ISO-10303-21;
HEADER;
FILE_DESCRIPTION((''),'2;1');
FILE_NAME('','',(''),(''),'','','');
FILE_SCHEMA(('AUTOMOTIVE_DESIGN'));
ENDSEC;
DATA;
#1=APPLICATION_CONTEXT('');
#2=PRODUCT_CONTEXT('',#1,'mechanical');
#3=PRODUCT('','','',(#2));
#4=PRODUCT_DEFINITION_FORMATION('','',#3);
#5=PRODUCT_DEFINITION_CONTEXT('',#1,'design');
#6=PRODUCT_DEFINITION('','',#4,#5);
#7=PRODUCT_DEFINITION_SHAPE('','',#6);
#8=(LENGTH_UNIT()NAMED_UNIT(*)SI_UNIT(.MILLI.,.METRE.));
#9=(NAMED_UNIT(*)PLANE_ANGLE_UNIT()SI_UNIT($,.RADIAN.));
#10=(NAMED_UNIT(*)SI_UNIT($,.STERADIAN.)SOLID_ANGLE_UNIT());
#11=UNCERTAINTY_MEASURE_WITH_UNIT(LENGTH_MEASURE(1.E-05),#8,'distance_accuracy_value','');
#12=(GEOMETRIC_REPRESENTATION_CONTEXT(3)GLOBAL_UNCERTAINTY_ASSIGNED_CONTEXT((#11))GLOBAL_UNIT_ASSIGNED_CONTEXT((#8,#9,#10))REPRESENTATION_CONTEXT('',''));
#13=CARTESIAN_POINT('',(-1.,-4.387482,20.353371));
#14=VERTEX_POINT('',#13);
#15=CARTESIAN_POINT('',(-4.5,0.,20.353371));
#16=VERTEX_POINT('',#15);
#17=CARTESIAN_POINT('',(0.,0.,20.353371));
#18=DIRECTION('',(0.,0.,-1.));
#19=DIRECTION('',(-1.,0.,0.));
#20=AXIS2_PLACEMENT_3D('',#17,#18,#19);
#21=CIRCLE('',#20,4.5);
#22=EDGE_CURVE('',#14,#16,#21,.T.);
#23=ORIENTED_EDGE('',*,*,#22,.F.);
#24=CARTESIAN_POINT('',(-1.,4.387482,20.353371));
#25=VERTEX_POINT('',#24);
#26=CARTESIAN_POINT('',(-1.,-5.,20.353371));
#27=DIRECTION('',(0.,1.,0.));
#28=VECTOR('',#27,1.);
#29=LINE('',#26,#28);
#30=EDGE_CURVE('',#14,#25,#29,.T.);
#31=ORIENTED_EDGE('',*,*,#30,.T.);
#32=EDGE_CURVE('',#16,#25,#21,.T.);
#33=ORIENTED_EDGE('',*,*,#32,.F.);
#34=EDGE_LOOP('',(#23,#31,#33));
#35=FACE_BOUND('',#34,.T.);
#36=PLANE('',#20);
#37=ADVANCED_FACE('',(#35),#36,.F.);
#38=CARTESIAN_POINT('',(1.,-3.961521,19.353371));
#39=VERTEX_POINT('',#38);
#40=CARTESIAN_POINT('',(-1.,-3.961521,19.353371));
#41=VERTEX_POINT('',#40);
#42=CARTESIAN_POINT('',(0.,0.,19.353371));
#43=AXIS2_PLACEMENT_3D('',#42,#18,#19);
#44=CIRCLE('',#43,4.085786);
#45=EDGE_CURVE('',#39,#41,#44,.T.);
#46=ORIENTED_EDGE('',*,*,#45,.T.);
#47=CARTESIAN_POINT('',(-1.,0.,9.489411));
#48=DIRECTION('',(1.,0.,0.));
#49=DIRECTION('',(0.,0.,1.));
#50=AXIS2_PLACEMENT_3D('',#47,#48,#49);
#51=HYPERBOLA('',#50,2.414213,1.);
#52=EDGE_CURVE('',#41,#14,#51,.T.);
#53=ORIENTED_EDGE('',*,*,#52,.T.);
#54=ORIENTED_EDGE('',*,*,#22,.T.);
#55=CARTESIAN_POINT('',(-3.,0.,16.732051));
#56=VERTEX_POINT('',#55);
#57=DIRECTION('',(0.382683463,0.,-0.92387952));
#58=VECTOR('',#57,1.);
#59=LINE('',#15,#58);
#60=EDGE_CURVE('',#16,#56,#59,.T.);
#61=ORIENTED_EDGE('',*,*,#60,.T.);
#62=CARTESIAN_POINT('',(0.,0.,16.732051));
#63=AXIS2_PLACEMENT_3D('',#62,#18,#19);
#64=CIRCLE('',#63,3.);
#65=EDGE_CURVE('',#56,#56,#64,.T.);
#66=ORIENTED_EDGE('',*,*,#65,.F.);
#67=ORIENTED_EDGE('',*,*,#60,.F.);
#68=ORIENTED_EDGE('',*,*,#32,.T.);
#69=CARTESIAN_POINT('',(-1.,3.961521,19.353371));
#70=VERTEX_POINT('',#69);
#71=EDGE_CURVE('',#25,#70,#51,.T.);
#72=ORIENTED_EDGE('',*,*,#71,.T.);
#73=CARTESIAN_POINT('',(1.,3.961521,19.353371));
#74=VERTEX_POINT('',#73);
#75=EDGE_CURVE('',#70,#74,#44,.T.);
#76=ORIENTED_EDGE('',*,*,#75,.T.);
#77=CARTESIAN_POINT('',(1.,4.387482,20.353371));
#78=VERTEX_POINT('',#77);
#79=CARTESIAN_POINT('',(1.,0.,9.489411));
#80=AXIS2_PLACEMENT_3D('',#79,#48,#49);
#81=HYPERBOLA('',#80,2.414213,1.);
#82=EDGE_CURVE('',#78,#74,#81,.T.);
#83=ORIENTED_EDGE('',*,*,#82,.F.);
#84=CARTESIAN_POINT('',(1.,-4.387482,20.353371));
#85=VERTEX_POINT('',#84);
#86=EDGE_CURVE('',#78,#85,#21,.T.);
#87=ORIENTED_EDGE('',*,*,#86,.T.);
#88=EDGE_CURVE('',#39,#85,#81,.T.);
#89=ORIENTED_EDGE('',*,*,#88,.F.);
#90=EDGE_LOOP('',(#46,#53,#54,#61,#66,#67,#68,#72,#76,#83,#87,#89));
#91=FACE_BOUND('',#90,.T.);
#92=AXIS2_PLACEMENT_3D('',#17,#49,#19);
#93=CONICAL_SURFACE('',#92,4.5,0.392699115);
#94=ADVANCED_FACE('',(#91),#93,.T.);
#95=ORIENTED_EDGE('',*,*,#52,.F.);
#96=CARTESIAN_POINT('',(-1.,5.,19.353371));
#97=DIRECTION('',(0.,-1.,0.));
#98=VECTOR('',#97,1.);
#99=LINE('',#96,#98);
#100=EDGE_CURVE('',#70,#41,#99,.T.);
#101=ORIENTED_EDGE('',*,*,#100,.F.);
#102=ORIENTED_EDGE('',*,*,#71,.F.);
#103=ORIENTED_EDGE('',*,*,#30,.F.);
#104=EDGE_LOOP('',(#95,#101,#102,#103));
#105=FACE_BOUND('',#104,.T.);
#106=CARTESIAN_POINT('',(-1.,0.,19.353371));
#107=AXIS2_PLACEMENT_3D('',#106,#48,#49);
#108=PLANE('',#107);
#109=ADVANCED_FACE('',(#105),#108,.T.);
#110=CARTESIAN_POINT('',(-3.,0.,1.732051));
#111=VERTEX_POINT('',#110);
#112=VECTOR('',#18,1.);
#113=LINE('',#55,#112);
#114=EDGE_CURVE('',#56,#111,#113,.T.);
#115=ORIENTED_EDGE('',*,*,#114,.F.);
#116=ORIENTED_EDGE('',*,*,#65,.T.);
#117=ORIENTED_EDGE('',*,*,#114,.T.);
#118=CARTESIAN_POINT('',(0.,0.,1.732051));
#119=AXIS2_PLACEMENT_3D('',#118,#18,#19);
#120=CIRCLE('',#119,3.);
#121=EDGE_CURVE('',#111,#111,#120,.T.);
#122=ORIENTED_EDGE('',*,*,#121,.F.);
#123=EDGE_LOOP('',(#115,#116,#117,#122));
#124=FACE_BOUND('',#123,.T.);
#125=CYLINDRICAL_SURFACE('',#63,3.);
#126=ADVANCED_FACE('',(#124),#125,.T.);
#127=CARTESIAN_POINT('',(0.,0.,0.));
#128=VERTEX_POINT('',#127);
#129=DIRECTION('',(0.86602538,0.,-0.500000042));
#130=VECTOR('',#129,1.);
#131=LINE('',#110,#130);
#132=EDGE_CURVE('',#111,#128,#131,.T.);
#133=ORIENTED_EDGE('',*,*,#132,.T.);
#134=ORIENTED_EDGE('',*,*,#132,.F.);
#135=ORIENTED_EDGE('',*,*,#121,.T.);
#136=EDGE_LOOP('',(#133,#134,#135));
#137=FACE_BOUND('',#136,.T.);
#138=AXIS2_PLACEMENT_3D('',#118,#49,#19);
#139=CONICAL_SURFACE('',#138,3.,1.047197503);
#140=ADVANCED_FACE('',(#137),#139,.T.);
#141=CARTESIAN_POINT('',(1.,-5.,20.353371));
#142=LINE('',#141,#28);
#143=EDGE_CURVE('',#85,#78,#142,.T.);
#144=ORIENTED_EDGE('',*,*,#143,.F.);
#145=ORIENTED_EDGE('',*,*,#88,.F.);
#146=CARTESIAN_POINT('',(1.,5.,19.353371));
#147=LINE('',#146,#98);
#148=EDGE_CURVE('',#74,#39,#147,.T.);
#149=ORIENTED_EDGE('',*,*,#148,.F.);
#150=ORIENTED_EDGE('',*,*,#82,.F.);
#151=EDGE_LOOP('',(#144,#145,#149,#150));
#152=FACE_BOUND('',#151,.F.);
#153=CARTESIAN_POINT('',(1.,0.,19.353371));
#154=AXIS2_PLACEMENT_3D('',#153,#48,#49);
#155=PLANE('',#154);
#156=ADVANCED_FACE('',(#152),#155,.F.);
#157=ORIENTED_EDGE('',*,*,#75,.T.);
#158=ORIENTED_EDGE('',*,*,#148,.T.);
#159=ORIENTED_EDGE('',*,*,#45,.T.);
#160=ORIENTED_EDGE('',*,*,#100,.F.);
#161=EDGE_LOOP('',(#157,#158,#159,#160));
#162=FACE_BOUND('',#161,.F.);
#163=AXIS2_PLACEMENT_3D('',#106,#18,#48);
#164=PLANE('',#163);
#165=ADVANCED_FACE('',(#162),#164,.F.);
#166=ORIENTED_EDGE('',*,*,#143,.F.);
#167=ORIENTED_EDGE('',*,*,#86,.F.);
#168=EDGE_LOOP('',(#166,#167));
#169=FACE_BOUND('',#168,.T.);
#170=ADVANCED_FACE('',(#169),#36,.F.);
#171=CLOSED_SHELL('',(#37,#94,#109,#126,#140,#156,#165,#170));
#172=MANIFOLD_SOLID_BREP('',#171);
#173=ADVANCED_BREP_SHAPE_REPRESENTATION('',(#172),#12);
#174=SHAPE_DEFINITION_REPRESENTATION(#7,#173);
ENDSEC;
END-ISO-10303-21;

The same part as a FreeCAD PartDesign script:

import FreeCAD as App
import Part
import Sketcher
Q = App.Units.Quantity

doc = App.newDocument("Part")
body = doc.addObject("PartDesign::Body", "Body")

# Sketch on XZ plane
sketch1 = body.newObject("Sketcher::SketchObject", "Sketch")
sketch1.AttachmentSupport = (doc.getObject("XZ_Plane"), [""])
sketch1.MapMode = "FlatFace"
sketch1.addGeometry(Part.LineSegment(App.Vector(-3, 1.7, 0), App.Vector(0, 0, 0)), False)
sketch1.addGeometry(Part.LineSegment(App.Vector(0, 0, 0), App.Vector(0, 20.4, 0)), False)
sketch1.addGeometry(Part.LineSegment(App.Vector(0, 20.4, 0), App.Vector(-4.5, 20.4, 0)), False)
sketch1.addGeometry(Part.LineSegment(App.Vector(-4.5, 20.4, 0), App.Vector(-3, 16.7, 0)), False)
sketch1.addGeometry(Part.LineSegment(App.Vector(-3, 16.7, 0), App.Vector(-3, 1.7, 0)), False)
sketch1.addConstraint(Sketcher.Constraint("Coincident", 0, 2, 1, 1))
sketch1.addConstraint(Sketcher.Constraint("Coincident", 1, 2, 2, 1))
sketch1.addConstraint(Sketcher.Constraint("Coincident", 2, 2, 3, 1))
sketch1.addConstraint(Sketcher.Constraint("Coincident", 3, 2, 4, 1))
sketch1.addConstraint(Sketcher.Constraint("Coincident", 4, 2, 0, 1))
sketch1.addConstraint(Sketcher.Constraint("Vertical", 1))
sketch1.addConstraint(Sketcher.Constraint("Horizontal", 2))
sketch1.addConstraint(Sketcher.Constraint("Vertical", 4))
sketch1.addConstraint(Sketcher.Constraint("Coincident", 0, 2, -1, 1))
sketch1.addConstraint(Sketcher.Constraint("DistanceY", 4, 2, 4, 1, 15.0))
sketch1.addConstraint(Sketcher.Constraint("Angle", 0, Q("-30.000003 deg")))
sketch1.addConstraint(Sketcher.Constraint("DistanceX", 2, 2, 2, 1, 4.5))
sketch1.addConstraint(Sketcher.Constraint("DistanceX", 3, 2, -1, 1, 3.0))
sketch1.addConstraint(Sketcher.Constraint("Angle", 3, Q("-67.499998 deg")))
revolution = body.newObject("PartDesign::Revolution", "Revolution")
revolution.Profile = sketch1
revolution.ReferenceAxis = (sketch1, ["V_Axis"])
revolution.Angle = 360

# Sketch on XZ plane
sketch2 = body.newObject("Sketcher::SketchObject", "Sketch001")
sketch2.AttachmentSupport = (doc.getObject("XZ_Plane"), [""])
sketch2.MapMode = "FlatFace"
sketch2.addGeometry(Part.LineSegment(App.Vector(-1, 20.4, 0), App.Vector(-1, 19.4, 0)), False)
sketch2.addGeometry(Part.LineSegment(App.Vector(-1, 19.4, 0), App.Vector(1, 19.4, 0)), False)
sketch2.addGeometry(Part.LineSegment(App.Vector(1, 19.4, 0), App.Vector(1, 20.4, 0)), False)
sketch2.addGeometry(Part.LineSegment(App.Vector(1, 20.4, 0), App.Vector(-1, 20.4, 0)), False)
sketch2.addConstraint(Sketcher.Constraint("Coincident", 0, 2, 1, 1))
sketch2.addConstraint(Sketcher.Constraint("Coincident", 1, 2, 2, 1))
sketch2.addConstraint(Sketcher.Constraint("Coincident", 2, 2, 3, 1))
sketch2.addConstraint(Sketcher.Constraint("Coincident", 3, 2, 0, 1))
sketch2.addConstraint(Sketcher.Constraint("Vertical", 0))
sketch2.addConstraint(Sketcher.Constraint("Horizontal", 1))
sketch2.addConstraint(Sketcher.Constraint("Vertical", 2))
sketch2.addConstraint(Sketcher.Constraint("Horizontal", 3))
sketch2.addConstraint(Sketcher.Constraint("DistanceX", 1, 1, 1, 2, 2.0))
sketch2.addConstraint(Sketcher.Constraint("DistanceY", 0, 2, 0, 1, 1.0))
sketch2.addConstraint(Sketcher.Constraint("DistanceX", 0, 2, -1, 1, 1.0))
sketch2.addConstraint(Sketcher.Constraint("DistanceY", -1, 1, 0, 2, 19.353371))
pocket1 = body.newObject("PartDesign::Pocket", "Pocket")
pocket1.Profile = sketch2
pocket1.Length = 10
pocket1.Midplane = True

doc.recompute()
